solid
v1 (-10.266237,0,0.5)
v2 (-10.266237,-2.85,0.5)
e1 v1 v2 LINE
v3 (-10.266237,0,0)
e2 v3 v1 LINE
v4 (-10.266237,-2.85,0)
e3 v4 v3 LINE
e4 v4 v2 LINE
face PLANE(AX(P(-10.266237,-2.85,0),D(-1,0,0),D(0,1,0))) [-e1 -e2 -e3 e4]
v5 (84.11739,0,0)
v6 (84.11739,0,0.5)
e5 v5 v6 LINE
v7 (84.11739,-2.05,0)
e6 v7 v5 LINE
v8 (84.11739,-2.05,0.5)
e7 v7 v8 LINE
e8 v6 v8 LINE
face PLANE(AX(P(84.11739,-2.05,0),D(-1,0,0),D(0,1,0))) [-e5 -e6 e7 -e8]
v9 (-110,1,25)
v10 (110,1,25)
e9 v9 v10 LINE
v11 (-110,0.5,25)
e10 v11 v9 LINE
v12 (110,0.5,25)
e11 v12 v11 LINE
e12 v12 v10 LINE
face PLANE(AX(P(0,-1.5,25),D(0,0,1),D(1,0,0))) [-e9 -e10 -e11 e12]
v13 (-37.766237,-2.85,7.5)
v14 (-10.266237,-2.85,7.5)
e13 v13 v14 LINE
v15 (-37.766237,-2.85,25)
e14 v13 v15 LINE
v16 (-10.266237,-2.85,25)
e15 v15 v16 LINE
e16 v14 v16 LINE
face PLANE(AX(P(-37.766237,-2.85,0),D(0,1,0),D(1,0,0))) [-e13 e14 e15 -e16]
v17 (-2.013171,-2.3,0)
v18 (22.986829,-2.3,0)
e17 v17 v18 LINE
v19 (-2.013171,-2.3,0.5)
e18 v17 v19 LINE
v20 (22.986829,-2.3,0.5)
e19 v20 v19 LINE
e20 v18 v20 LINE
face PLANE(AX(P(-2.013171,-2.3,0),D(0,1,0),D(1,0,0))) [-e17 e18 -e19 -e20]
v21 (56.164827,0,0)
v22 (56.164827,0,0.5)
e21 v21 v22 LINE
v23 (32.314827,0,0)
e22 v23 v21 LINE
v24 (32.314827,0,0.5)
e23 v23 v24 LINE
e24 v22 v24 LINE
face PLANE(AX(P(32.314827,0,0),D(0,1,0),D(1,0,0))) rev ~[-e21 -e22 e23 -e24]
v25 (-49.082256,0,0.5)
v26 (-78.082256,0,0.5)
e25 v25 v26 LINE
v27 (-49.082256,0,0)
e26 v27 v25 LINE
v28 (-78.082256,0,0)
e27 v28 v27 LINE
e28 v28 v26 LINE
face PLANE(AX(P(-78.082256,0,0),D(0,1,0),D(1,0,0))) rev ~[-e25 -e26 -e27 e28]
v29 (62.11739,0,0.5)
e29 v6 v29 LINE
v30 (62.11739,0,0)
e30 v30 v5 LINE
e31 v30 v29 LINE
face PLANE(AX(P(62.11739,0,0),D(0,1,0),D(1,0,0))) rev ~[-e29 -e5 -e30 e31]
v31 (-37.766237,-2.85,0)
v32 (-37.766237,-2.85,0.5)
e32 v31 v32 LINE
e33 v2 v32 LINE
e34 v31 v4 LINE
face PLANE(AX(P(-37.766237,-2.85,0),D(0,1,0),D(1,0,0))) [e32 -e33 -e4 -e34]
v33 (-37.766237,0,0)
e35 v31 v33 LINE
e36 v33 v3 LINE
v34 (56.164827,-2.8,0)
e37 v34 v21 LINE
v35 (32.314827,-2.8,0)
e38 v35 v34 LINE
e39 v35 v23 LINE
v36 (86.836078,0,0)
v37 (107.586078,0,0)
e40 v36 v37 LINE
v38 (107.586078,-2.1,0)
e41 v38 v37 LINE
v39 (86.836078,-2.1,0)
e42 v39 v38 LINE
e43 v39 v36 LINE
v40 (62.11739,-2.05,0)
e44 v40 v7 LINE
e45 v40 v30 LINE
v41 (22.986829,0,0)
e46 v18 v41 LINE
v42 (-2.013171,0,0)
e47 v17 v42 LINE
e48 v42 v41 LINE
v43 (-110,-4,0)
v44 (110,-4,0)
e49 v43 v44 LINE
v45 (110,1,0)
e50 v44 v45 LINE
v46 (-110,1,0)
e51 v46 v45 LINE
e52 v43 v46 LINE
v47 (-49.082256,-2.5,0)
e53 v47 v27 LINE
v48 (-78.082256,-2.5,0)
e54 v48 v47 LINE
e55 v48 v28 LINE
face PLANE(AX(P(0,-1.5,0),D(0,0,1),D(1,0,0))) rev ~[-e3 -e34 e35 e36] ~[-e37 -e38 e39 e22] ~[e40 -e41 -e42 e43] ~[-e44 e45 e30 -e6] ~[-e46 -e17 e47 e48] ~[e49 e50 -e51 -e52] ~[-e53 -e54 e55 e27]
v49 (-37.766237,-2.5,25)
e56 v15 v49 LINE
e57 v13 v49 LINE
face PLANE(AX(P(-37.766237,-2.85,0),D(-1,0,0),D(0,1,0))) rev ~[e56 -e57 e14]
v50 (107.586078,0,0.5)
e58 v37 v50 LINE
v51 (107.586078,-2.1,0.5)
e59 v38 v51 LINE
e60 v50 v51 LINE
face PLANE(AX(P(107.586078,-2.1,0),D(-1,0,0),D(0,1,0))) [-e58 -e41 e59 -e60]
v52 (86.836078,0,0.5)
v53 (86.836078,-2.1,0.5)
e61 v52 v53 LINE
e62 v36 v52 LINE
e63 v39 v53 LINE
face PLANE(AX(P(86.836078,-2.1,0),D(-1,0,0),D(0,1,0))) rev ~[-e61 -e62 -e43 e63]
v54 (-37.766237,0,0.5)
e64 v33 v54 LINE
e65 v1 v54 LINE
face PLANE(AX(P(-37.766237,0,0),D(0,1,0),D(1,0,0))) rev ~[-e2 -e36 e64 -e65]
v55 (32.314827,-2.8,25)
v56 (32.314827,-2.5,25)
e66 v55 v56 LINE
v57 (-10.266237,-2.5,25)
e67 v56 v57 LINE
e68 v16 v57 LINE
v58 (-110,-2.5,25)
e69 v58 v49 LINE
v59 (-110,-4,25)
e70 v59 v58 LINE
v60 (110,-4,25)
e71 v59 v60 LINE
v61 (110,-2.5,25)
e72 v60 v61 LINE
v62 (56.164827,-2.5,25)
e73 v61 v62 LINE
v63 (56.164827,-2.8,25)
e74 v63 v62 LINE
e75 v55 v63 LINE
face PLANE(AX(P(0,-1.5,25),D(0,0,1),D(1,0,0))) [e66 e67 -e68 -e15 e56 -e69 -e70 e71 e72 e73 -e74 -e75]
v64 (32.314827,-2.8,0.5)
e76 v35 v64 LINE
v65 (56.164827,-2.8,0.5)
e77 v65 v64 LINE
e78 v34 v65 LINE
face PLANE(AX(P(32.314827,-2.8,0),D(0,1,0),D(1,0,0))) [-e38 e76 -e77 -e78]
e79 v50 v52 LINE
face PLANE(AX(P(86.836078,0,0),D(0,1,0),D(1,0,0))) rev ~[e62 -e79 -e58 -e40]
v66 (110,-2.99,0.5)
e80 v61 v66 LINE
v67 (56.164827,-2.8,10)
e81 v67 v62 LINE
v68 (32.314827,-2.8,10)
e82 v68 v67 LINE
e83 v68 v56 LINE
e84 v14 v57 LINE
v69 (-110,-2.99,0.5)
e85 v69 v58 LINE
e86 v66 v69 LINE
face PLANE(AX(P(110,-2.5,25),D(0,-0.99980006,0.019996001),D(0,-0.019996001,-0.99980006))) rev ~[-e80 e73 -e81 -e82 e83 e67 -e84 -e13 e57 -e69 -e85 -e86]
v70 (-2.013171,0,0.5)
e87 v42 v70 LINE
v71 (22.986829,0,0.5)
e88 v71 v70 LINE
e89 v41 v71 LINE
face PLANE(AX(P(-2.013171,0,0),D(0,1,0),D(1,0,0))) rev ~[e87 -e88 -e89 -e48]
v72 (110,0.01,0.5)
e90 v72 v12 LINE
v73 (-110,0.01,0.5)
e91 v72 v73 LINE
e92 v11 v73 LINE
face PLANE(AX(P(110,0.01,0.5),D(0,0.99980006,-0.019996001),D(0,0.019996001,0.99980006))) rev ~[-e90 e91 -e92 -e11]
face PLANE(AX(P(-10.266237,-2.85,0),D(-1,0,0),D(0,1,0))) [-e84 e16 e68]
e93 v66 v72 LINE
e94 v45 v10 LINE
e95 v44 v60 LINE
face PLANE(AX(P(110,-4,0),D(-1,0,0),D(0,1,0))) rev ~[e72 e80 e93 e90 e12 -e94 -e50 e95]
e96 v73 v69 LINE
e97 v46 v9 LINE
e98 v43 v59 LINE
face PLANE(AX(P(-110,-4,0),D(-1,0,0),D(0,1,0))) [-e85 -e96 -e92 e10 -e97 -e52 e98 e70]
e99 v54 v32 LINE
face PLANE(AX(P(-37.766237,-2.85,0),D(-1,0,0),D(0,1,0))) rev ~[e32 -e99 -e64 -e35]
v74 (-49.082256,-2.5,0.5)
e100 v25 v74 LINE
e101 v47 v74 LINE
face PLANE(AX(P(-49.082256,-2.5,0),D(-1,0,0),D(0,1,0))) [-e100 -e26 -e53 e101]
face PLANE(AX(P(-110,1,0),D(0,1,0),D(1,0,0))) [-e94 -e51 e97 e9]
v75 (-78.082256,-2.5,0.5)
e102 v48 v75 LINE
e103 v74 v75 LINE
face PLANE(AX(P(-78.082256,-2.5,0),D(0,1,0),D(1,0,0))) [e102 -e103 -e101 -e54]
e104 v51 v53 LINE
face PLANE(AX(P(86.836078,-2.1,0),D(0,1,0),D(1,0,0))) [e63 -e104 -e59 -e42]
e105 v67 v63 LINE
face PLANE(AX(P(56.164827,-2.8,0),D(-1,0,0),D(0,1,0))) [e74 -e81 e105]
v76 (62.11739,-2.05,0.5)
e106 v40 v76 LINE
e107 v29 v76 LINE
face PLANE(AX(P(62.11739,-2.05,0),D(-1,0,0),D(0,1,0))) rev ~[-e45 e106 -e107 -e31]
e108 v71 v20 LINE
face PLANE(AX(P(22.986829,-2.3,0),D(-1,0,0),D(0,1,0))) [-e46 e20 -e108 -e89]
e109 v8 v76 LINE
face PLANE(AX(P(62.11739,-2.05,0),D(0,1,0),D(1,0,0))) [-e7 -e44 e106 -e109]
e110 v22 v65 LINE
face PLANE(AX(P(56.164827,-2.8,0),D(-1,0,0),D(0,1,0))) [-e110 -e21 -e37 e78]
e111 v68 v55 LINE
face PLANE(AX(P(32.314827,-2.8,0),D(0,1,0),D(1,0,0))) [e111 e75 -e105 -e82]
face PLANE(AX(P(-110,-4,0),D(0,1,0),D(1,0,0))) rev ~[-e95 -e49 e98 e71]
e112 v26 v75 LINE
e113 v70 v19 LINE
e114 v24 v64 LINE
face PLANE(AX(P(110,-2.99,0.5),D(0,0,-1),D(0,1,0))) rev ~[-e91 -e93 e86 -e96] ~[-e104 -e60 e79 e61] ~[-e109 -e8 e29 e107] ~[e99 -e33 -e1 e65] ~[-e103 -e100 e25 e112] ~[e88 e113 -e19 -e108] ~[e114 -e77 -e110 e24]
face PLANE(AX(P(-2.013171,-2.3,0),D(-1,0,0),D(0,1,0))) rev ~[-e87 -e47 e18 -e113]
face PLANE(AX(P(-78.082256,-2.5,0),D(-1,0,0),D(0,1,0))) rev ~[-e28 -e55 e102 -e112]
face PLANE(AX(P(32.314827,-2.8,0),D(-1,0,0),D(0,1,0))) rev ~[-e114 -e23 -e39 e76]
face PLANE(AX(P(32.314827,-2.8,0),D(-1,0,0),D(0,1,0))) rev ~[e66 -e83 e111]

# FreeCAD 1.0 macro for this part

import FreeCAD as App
import Part
import Sketcher


def add_polygon(sketch, points):
    """Adds a closed chain of lines whose ends are joined by coincident constraints."""
    first, n = sketch.GeometryCount, len(points)
    for a, b in zip(points, points[1:] + points[:1]):
        sketch.addGeometry(Part.LineSegment(App.Vector(*a, 0), App.Vector(*b, 0)), False)
    for i in range(n):
        sketch.addConstraint(Sketcher.Constraint("Coincident", first + i, 2, first + (i + 1) % n, 1))

doc = App.newDocument("Part")
body = doc.addObject("PartDesign::Body", "Body")

# Sketch on XY plane
sketch1 = body.newObject("Sketcher::SketchObject", "Sketch")
sketch1.AttachmentSupport = (doc.getObject("XY_Plane"), [""])
sketch1.MapMode = "FlatFace"
add_polygon(sketch1, [(-110, 1), (-110, -4), (110, -4), (110, 1)])  # lines 0-3
add_polygon(sketch1, [(-49.1, -2.5), (-78.1, -2.5), (-78.1, 0), (-49.1, 0)])  # lines 4-7
add_polygon(sketch1, [(-10.3, -2.9), (-37.8, -2.9), (-37.8, 0), (-10.3, 0)])  # lines 8-11
add_polygon(sketch1, [(23, -2.3), (-2, -2.3), (-2, 0), (23, 0)])  # lines 12-15
add_polygon(sketch1, [(56.2, -2.8), (32.3, -2.8), (32.3, 0), (56.2, 0)])  # lines 16-19
add_polygon(sketch1, [(84.1, -2), (62.1, -2), (62.1, 0), (84.1, 0)])  # lines 20-23
add_polygon(sketch1, [(107.6, -2.1), (86.8, -2.1), (86.8, 0), (107.6, 0)])  # lines 24-27
sketch1.addConstraint([
    Sketcher.Constraint("Vertical", 0),
    Sketcher.Constraint("Horizontal", 1),
    Sketcher.Constraint("Vertical", 2),
    Sketcher.Constraint("Horizontal", 3),
    Sketcher.Constraint("Horizontal", 4),
    Sketcher.Constraint("Vertical", 5),
    Sketcher.Constraint("Horizontal", 6),
    Sketcher.Constraint("Vertical", 7),
    Sketcher.Constraint("Horizontal", 8),
    Sketcher.Constraint("Vertical", 9),
    Sketcher.Constraint("Horizontal", 10),
    Sketcher.Constraint("Vertical", 11),
    Sketcher.Constraint("Horizontal", 12),
    Sketcher.Constraint("Vertical", 13),
    Sketcher.Constraint("Horizontal", 14),
    Sketcher.Constraint("Vertical", 15),
    Sketcher.Constraint("Horizontal", 16),
    Sketcher.Constraint("Vertical", 17),
    Sketcher.Constraint("Horizontal", 18),
    Sketcher.Constraint("Vertical", 19),
    Sketcher.Constraint("Horizontal", 20),
    Sketcher.Constraint("Vertical", 21),
    Sketcher.Constraint("Horizontal", 22),
    Sketcher.Constraint("Vertical", 23),
    Sketcher.Constraint("Horizontal", 24),
    Sketcher.Constraint("Vertical", 25),
    Sketcher.Constraint("Horizontal", 26),
    Sketcher.Constraint("Vertical", 27),
    Sketcher.Constraint("PointOnObject", 5, 2, -1),
    Sketcher.Constraint("PointOnObject", 9, 2, -1),
    Sketcher.Constraint("PointOnObject", 13, 2, -1),
    Sketcher.Constraint("PointOnObject", 17, 2, -1),
    Sketcher.Constraint("PointOnObject", 21, 2, -1),
    Sketcher.Constraint("PointOnObject", 25, 2, -1),
    Sketcher.Constraint("DistanceX", 1, 1, 1, 2, 220.0),
    Sketcher.Constraint("DistanceX", 4, 2, 4, 1, 29.0),
    Sketcher.Constraint("DistanceX", 12, 2, 12, 1, 25.0),
    Sketcher.Constraint("DistanceX", 20, 2, 20, 1, 22.0),
    Sketcher.Constraint("DistanceY", 0, 2, 0, 1, 5.0),
    Sketcher.Constraint("DistanceX", 8, 2, 8, 1, 27.5),
    Sketcher.Constraint("DistanceY", 5, 1, 5, 2, 2.5),
    Sketcher.Constraint("DistanceY", 13, 1, 13, 2, 2.3),
    Sketcher.Constraint("DistanceY", 17, 1, 17, 2, 2.8),
    Sketcher.Constraint("DistanceY", 25, 1, 25, 2, 2.1),
    Sketcher.Constraint("DistanceX", 0, 2, -1, 1, 110.0),
    Sketcher.Constraint("DistanceY", 0, 2, -1, 1, 4.0),
    Sketcher.Constraint("DistanceX", 16, 2, 16, 1, 23.85),
    Sketcher.Constraint("DistanceX", 24, 2, 24, 1, 20.75),
    Sketcher.Constraint("DistanceY", 9, 1, 9, 2, 2.85),
    Sketcher.Constraint("DistanceY", 21, 1, 21, 2, 2.05),
    Sketcher.Constraint("DistanceX", 15, 2, 16, 2, 9.327998),
    Sketcher.Constraint("DistanceX", 12, 2, -1, 1, 2.013171),
    Sketcher.Constraint("DistanceX", -1, 1, 20, 2, 62.11739),
    Sketcher.Constraint("DistanceX", -1, 1, 24, 2, 86.836078),
    Sketcher.Constraint("DistanceX", 7, 2, 8, 2, 11.316019),
    Sketcher.Constraint("DistanceX", 4, 2, -1, 1, 78.082256),
])
pad1 = body.newObject("PartDesign::Pad", "Pad")
pad1.Profile = sketch1
pad1.Length = 25

# Sketch on YZ plane
sketch2 = body.newObject("Sketcher::SketchObject", "Sketch001")
sketch2.AttachmentSupport = (doc.getObject("YZ_Plane"), [""])
sketch2.MapMode = "FlatFace"
sketch2.AttachmentOffset = App.Placement(App.Vector(0, 0, 110), App.Rotation())
add_polygon(sketch2, [(0.5, 25), (-2.5, 25), (-3, 0.5), (0, 0.5)])  # lines 0-3
sketch2.addConstraint([
    Sketcher.Constraint("Horizontal", 0),
    Sketcher.Constraint("Horizontal", 2),
    Sketcher.Constraint("Parallel", 1, 3),
    Sketcher.Constraint("DistanceX", 0, 2, 0, 1, 3.0),
    Sketcher.Constraint("DistanceY", -1, 1, 0, 2, 25.0),
    Sketcher.Constraint("DistanceX", 0, 2, -1, 1, 2.5),
    Sketcher.Constraint("DistanceY", -1, 1, 1, 2, 0.5),
    Sketcher.Constraint("DistanceX", 1, 2, -1, 1, 2.99),
])
pocket1 = body.newObject("PartDesign::Pocket", "Pocket")
pocket1.Profile = sketch2
pocket1.Length = 300

doc.recompute()
